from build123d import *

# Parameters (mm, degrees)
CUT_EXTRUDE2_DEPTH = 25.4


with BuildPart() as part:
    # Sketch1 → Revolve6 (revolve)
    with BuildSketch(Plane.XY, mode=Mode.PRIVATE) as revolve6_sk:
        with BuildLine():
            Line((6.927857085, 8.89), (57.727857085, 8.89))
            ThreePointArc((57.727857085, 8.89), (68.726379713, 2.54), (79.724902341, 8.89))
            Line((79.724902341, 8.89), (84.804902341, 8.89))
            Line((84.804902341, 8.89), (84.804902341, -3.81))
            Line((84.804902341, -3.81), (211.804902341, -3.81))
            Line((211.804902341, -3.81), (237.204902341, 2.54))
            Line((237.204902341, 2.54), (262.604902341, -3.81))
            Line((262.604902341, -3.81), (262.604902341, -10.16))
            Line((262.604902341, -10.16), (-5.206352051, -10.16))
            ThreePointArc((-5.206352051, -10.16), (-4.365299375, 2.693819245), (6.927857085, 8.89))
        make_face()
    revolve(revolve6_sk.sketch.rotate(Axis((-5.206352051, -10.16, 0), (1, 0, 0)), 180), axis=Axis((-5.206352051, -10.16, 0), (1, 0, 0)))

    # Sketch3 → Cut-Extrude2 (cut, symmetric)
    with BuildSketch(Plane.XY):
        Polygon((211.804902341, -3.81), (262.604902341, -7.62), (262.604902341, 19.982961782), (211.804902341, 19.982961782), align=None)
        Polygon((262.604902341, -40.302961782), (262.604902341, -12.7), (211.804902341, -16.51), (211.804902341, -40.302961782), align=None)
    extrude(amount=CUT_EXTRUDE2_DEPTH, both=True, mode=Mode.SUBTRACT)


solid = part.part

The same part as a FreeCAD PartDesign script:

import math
import FreeCAD as App
import Part
import Sketcher
Q = App.Units.Quantity


def add_polygon(sketch, points):
    """Adds a closed chain of lines whose ends are joined by coincident constraints."""
    first, n = sketch.GeometryCount, len(points)
    for a, b in zip(points, points[1:] + points[:1]):
        sketch.addGeometry(Part.LineSegment(App.Vector(*a, 0), App.Vector(*b, 0)), False)
    for i in range(n):
        sketch.addConstraint(Sketcher.Constraint("Coincident", first + i, 2, first + (i + 1) % n, 1))

doc = App.newDocument("Part")
params = doc.addObject("Spreadsheet::Sheet", "Params")
for row, (alias, value) in enumerate([
    ("sketch1_radius", "0.5 in"),
    ("sketch1_width", "2 in"),
    ("sketch1_width2", "5 in"),
    ("sketch1_width3", "0.2 in"),
    ("sketch1_height", "0.5 in"),
    ("revolution_angle", "360 deg"),
    ("sketch2_width", "2 in"),
    ("pocket1_length", "2 in"),
], start=1):
    params.set(f"A{row}", alias)
    params.set(f"B{row}", "=" + value)
    params.setAlias(f"B{row}", alias)

body = doc.addObject("PartDesign::Body", "Body")

# Sketch on XY plane
sketch1 = body.newObject("Sketcher::SketchObject", "Sketch")
sketch1.AttachmentSupport = (doc.getObject("XY_Plane"), [""])
sketch1.MapMode = "FlatFace"
sketch1.addGeometry([
    Part.LineSegment(App.Vector(58, 9, 0), App.Vector(7, 9, 0)),  # 0
    Part.ArcOfCircle(Part.Circle(App.Vector(7, -4, 0), App.Vector(0, 0, 1), 13), math.radians(90), math.radians(205)),  # 1
    Part.LineSegment(App.Vector(-5, -10, 0), App.Vector(263, -10, 0)),  # 2
    Part.LineSegment(App.Vector(263, -10, 0), App.Vector(263, -4, 0)),  # 3
    Part.LineSegment(App.Vector(263, -4, 0), App.Vector(237, 3, 0)),  # 4
    Part.LineSegment(App.Vector(237, 3, 0), App.Vector(212, -4, 0)),  # 5
    Part.LineSegment(App.Vector(212, -4, 0), App.Vector(85, -4, 0)),  # 6
    Part.LineSegment(App.Vector(85, -4, 0), App.Vector(85, 9, 0)),  # 7
    Part.LineSegment(App.Vector(85, 9, 0), App.Vector(80, 9, 0)),  # 8
    Part.ArcOfCircle(Part.Circle(App.Vector(69, 15, 0), App.Vector(0, 0, 1), 13), math.radians(-150), math.radians(-30)),  # 9
], False)
sketch1.addGeometry(Part.LineSegment(App.Vector(-5, -10, 0), App.Vector(263, -10, 0)), True)  # axis
sketch1.addConstraint([
    Sketcher.Constraint("Tangent", 0, 2, 1, 1),
    Sketcher.Constraint("Coincident", 1, 2, 2, 1),
    Sketcher.Constraint("Coincident", 2, 2, 3, 1),
    Sketcher.Constraint("Coincident", 3, 2, 4, 1),
    Sketcher.Constraint("Coincident", 4, 2, 5, 1),
    Sketcher.Constraint("Coincident", 5, 2, 6, 1),
    Sketcher.Constraint("Coincident", 6, 2, 7, 1),
    Sketcher.Constraint("Coincident", 7, 2, 8, 1),
    Sketcher.Constraint("Coincident", 8, 2, 9, 2),
    Sketcher.Constraint("Coincident", 9, 1, 0, 1),
    Sketcher.Constraint("Horizontal", 0),
    Sketcher.Constraint("Horizontal", 2),
    Sketcher.Constraint("Vertical", 3),
    Sketcher.Constraint("Horizontal", 6),
    Sketcher.Constraint("Vertical", 7),
    Sketcher.Constraint("Horizontal", 8),
    Sketcher.Constraint("Horizontal", 10),
    Sketcher.Constraint("Coincident", 10, 1, 1, 2),
    Sketcher.Constraint("Horizontal", 3, 2, 5, 2),
    Sketcher.Constraint("Horizontal", 0, 2, 7, 2),
    Sketcher.Constraint("Vertical", 3, 2, 10, 2),
    Sketcher.Constraint("Equal", 4, 5),
    Sketcher.Constraint("Radius", 9, Q("0.5 in")),
    Sketcher.Constraint("DistanceX", 0, 2, 0, 1, Q("2 in")),
    Sketcher.Constraint("DistanceX", 6, 2, 6, 1, Q("5 in")),
    Sketcher.Constraint("DistanceX", 8, 2, 8, 1, Q("0.2 in")),
    Sketcher.Constraint("DistanceY", 7, 1, 7, 2, Q("0.5 in")),
    Sketcher.Constraint("DistanceY", 1, 2, 9, 3, Q("1 in")),
    Sketcher.Constraint("DistanceX", 4, 2, 3, 2, Q("1 in")),
    Sketcher.Constraint("DistanceY", 3, 1, 3, 2, Q("0.25 in")),
    Sketcher.Constraint("DistanceY", -1, 1, 9, 3, Q("0.6 in")),
    Sketcher.Constraint("DistanceY", -1, 1, 4, 2, Q("0.1 in")),
    Sketcher.Constraint("Radius", 1, 13.389542),
    Sketcher.Constraint("DistanceX", -1, 1, 9, 3, 68.72638),
])
sketch1.setExpression("Constraints[22]", "Params.sketch1_radius")
sketch1.setExpression("Constraints[23]", "Params.sketch1_width")
sketch1.setExpression("Constraints[24]", "Params.sketch1_width2")
sketch1.setExpression("Constraints[25]", "Params.sketch1_width3")
sketch1.setExpression("Constraints[26]", "Params.sketch1_height")
revolution = body.newObject("PartDesign::Revolution", "Revolution")
revolution.Profile = sketch1
revolution.ReferenceAxis = (sketch1, ["Axis0"])
revolution.setExpression("Angle", "Params.revolution_angle")

# Sketch on XY plane
sketch2 = body.newObject("Sketcher::SketchObject", "Sketch001")
sketch2.AttachmentSupport = (doc.getObject("XY_Plane"), [""])
sketch2.MapMode = "FlatFace"
add_polygon(sketch2, [(212, -4), (263, -8), (263, 20), (212, 20)])  # lines 0-3
add_polygon(sketch2, [(263, -40), (263, -13), (212, -17), (212, -40)])  # lines 4-7
sketch2.addConstraint([
    Sketcher.Constraint("Vertical", 1),
    Sketcher.Constraint("Horizontal", 2),
    Sketcher.Constraint("Vertical", 3),
    Sketcher.Constraint("Vertical", 4),
    Sketcher.Constraint("Vertical", 6),
    Sketcher.Constraint("Horizontal", 7),
    Sketcher.Constraint("Vertical", 1, 2, 4, 2),
    Sketcher.Constraint("Vertical", 3, 2, 5, 2),
    Sketcher.Constraint("Equal", 1, 4),
    Sketcher.Constraint("Equal", 3, 6),
    Sketcher.Constraint("DistanceX", 2, 2, 2, 1, Q("2 in")),
    Sketcher.Constraint("DistanceY", 0, 2, -1, 1, Q("0.3 in")),
    Sketcher.Constraint("DistanceY", 4, 2, -1, 1, Q("0.5 in")),
    Sketcher.Constraint("DistanceY", 5, 2, 3, 2, Q("0.5 in")),
    Sketcher.Constraint("DistanceY", 1, 1, 1, 2, 27.602962),
    Sketcher.Constraint("DistanceX", -1, 1, 0, 2, 262.604902),
])
sketch2.setExpression("Constraints[18]", "Params.sketch2_width")
pocket1 = body.newObject("PartDesign::Pocket", "Pocket")
pocket1.Profile = sketch2
pocket1.setExpression("Length", "Params.pocket1_length")
pocket1.Midplane = True

doc.recompute()
